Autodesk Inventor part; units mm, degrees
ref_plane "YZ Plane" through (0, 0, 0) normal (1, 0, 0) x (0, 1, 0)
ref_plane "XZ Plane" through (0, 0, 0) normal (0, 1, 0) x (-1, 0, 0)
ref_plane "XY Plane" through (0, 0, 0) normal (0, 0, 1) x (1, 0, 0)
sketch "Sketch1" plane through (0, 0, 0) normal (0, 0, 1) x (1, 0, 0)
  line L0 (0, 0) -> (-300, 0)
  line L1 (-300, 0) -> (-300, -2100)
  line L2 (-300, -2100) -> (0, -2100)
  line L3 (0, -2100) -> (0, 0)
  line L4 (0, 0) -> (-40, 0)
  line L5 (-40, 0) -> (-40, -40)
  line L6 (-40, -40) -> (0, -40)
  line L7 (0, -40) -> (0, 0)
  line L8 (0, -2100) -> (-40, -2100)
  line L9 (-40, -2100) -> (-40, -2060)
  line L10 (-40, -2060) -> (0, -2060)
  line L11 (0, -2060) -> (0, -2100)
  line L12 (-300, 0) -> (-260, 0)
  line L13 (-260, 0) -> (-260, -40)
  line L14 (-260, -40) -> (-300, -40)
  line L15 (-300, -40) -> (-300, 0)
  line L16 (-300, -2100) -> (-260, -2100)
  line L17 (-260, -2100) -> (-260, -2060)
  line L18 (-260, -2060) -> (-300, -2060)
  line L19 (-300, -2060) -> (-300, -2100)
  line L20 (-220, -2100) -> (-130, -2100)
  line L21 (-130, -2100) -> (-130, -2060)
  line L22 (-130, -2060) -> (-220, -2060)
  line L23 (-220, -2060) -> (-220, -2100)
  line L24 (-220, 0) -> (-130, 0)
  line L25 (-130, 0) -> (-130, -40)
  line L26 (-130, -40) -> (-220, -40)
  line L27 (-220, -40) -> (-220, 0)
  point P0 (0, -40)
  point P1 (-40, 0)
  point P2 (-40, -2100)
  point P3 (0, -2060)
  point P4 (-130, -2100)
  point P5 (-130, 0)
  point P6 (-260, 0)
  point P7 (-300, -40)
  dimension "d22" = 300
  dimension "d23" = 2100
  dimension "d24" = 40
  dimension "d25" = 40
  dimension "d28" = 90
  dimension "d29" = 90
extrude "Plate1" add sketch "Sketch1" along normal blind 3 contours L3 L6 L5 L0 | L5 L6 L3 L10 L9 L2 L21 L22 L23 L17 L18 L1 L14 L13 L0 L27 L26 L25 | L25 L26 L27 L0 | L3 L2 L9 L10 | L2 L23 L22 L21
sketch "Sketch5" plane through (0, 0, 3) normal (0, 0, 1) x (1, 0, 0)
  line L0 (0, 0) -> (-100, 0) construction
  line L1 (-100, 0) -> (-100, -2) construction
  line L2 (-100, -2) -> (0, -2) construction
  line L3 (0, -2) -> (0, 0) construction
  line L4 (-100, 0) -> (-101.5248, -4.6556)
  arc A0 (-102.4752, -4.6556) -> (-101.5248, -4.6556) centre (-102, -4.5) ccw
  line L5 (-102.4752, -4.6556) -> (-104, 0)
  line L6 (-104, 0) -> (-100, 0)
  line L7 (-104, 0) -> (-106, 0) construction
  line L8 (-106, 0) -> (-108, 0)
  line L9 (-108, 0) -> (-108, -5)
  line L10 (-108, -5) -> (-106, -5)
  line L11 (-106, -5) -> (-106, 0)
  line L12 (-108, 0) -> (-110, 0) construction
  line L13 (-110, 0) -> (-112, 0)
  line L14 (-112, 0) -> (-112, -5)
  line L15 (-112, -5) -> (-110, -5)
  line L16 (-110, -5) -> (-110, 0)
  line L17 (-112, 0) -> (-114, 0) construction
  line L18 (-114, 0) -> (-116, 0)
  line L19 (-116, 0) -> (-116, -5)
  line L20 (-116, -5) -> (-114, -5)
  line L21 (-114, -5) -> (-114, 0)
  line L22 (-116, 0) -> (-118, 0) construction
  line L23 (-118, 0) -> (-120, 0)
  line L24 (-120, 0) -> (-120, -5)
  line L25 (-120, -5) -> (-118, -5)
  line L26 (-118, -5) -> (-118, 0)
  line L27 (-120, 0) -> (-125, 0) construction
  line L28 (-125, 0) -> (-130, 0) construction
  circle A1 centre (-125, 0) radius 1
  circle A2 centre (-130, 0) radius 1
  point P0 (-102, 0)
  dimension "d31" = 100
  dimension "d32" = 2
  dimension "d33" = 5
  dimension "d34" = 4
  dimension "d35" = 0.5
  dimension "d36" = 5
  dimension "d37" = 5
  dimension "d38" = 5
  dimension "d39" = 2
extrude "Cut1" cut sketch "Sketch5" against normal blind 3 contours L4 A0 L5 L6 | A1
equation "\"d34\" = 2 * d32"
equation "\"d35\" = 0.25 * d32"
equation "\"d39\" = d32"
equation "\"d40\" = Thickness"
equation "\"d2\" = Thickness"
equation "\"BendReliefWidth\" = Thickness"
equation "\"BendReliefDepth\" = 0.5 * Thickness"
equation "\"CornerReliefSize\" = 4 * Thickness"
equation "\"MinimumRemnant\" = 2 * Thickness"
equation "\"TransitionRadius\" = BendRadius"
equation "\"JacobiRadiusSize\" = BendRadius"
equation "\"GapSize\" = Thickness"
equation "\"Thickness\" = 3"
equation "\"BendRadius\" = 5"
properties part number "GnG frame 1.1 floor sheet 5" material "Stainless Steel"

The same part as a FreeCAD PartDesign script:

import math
import FreeCAD as App
import Part
import Sketcher

V = App.Vector
Q = App.Units.Quantity

doc = App.newDocument("Part")
params = doc.addObject("Spreadsheet::Sheet", "Params")
for row, (alias, value) in enumerate([
    ("sketch1_width", "40 mm"),
    ("sketch1_height", "2100 mm"),
    ("pad1_length", "3 mm"),
    ("sketch2_diameter", "2 mm"),
    ("sketch2_radius", "0.5 mm"),
    ("sketch2_width", "4 mm"),
    ("pocket1_length", "3 mm"),
], start=1):
    params.set(f"A{row}", alias)
    params.set(f"B{row}", "=" + value)
    params.setAlias(f"B{row}", alias)

body = doc.addObject("PartDesign::Body", "Body")

sketch1 = body.newObject("Sketcher::SketchObject", "Sketch")
sketch1.AttachmentSupport = (doc.getObject("XY_Plane"), [""])
sketch1.MapMode = "FlatFace"
sketch1.addGeometry([
    Part.LineSegment(V(0, 0, 0), V(-260, 0, 0)),
    Part.LineSegment(V(-260, 0, 0), V(-260, -40, 0)),
    Part.LineSegment(V(-260, -40, 0), V(-300, -40, 0)),
    Part.LineSegment(V(-300, -40, 0), V(-300, -2060, 0)),
    Part.LineSegment(V(-300, -2060, 0), V(-260, -2060, 0)),
    Part.LineSegment(V(-260, -2060, 0), V(-260, -2100, 0)),
    Part.LineSegment(V(-260, -2100, 0), V(0, -2100, 0)),
    Part.LineSegment(V(0, -2100, 0), V(0, 0, 0)),
], False)
sketch1.addConstraint([
    Sketcher.Constraint("Coincident", 0, 2, 1, 1),
    Sketcher.Constraint("Coincident", 1, 2, 2, 1),
    Sketcher.Constraint("Coincident", 2, 2, 3, 1),
    Sketcher.Constraint("Coincident", 3, 2, 4, 1),
    Sketcher.Constraint("Coincident", 4, 2, 5, 1),
    Sketcher.Constraint("Coincident", 5, 2, 6, 1),
    Sketcher.Constraint("Coincident", 6, 2, 7, 1),
    Sketcher.Constraint("Coincident", 7, 2, 0, 1),
    Sketcher.Constraint("Horizontal", 0),
    Sketcher.Constraint("Vertical", 1),
    Sketcher.Constraint("Horizontal", 2),
    Sketcher.Constraint("Vertical", 3),
    Sketcher.Constraint("Horizontal", 4),
    Sketcher.Constraint("Vertical", 5),
    Sketcher.Constraint("Horizontal", 6),
    Sketcher.Constraint("Vertical", 7),
    Sketcher.Constraint("Coincident", 7, 2, -1, 1),
    Sketcher.Constraint("Vertical", 1, 2, 4, 2),
    Sketcher.Constraint("Equal", 4, 1),
    Sketcher.Constraint("Equal", 1, 5),
    Sketcher.Constraint("DistanceX", 2, 2, 2, 1, Q("40 mm")),
    Sketcher.Constraint("DistanceY", 7, 1, 7, 2, Q("2100 mm")),
    Sketcher.Constraint("DistanceX", 2, 2, -1, 1, Q("300 mm")),
])
sketch1.setExpression("Constraints[20]", "Params.sketch1_width")
sketch1.setExpression("Constraints[21]", "Params.sketch1_height")
pad1 = body.newObject("PartDesign::Pad", "Pad")
pad1.Profile = sketch1
pad1.setExpression("Length", "Params.pad1_length")

sketch2 = body.newObject("Sketcher::SketchObject", "Sketch001")
sketch2.AttachmentSupport = (doc.getObject("XY_Plane"), [""])
sketch2.MapMode = "FlatFace"
sketch2.AttachmentOffset = App.Placement(V(0, 0, 3), App.Rotation())
sketch2.addGeometry([
    Part.LineSegment(V(-101.5, -4.7, 0), V(-100, 0, 0)),
    Part.LineSegment(V(-100, 0, 0), V(-104, 0, 0)),
    Part.LineSegment(V(-104, 0, 0), V(-102.5, -4.7, 0)),
    Part.ArcOfCircle(Part.Circle(V(-102, -4.5, 0), V(0, 0, 1), 0.5), math.radians(-162), math.radians(-18)),
    Part.Circle(V(-125, 0, 0), V(0, 0, 1), 1),
], False)
sketch2.addConstraint([
    Sketcher.Constraint("Coincident", 0, 2, 1, 1),
    Sketcher.Constraint("Coincident", 1, 2, 2, 1),
    Sketcher.Constraint("Tangent", 2, 2, 3, 1),
    Sketcher.Constraint("Tangent", 3, 2, 0, 1),
    Sketcher.Constraint("Horizontal", 1),
    Sketcher.Constraint("PointOnObject", 4, 3, -1),
    Sketcher.Constraint("PointOnObject", 0, 2, -1),
    Sketcher.Constraint("Horizontal", 2, 2, 3, 2),
    Sketcher.Constraint("Diameter", 4, Q("2 mm")),
    Sketcher.Constraint("Radius", 3, Q("0.5 mm")),
    Sketcher.Constraint("DistanceX", 1, 2, 1, 1, Q("4 mm")),
    Sketcher.Constraint("DistanceX", 0, 2, -1, 1, Q("100 mm")),
    Sketcher.Constraint("DistanceX", 4, 3, -1, 1, Q("125 mm")),
    Sketcher.Constraint("DistanceY", 3, 3, -1, 1, Q("4.5 mm")),
])
sketch2.setExpression("Constraints[8]", "Params.sketch2_diameter")
sketch2.setExpression("Constraints[9]", "Params.sketch2_radius")
sketch2.setExpression("Constraints[10]", "Params.sketch2_width")
pocket1 = body.newObject("PartDesign::Pocket", "Pocket")
pocket1.Profile = sketch2
pocket1.setExpression("Length", "Params.pocket1_length")

doc.recompute()
